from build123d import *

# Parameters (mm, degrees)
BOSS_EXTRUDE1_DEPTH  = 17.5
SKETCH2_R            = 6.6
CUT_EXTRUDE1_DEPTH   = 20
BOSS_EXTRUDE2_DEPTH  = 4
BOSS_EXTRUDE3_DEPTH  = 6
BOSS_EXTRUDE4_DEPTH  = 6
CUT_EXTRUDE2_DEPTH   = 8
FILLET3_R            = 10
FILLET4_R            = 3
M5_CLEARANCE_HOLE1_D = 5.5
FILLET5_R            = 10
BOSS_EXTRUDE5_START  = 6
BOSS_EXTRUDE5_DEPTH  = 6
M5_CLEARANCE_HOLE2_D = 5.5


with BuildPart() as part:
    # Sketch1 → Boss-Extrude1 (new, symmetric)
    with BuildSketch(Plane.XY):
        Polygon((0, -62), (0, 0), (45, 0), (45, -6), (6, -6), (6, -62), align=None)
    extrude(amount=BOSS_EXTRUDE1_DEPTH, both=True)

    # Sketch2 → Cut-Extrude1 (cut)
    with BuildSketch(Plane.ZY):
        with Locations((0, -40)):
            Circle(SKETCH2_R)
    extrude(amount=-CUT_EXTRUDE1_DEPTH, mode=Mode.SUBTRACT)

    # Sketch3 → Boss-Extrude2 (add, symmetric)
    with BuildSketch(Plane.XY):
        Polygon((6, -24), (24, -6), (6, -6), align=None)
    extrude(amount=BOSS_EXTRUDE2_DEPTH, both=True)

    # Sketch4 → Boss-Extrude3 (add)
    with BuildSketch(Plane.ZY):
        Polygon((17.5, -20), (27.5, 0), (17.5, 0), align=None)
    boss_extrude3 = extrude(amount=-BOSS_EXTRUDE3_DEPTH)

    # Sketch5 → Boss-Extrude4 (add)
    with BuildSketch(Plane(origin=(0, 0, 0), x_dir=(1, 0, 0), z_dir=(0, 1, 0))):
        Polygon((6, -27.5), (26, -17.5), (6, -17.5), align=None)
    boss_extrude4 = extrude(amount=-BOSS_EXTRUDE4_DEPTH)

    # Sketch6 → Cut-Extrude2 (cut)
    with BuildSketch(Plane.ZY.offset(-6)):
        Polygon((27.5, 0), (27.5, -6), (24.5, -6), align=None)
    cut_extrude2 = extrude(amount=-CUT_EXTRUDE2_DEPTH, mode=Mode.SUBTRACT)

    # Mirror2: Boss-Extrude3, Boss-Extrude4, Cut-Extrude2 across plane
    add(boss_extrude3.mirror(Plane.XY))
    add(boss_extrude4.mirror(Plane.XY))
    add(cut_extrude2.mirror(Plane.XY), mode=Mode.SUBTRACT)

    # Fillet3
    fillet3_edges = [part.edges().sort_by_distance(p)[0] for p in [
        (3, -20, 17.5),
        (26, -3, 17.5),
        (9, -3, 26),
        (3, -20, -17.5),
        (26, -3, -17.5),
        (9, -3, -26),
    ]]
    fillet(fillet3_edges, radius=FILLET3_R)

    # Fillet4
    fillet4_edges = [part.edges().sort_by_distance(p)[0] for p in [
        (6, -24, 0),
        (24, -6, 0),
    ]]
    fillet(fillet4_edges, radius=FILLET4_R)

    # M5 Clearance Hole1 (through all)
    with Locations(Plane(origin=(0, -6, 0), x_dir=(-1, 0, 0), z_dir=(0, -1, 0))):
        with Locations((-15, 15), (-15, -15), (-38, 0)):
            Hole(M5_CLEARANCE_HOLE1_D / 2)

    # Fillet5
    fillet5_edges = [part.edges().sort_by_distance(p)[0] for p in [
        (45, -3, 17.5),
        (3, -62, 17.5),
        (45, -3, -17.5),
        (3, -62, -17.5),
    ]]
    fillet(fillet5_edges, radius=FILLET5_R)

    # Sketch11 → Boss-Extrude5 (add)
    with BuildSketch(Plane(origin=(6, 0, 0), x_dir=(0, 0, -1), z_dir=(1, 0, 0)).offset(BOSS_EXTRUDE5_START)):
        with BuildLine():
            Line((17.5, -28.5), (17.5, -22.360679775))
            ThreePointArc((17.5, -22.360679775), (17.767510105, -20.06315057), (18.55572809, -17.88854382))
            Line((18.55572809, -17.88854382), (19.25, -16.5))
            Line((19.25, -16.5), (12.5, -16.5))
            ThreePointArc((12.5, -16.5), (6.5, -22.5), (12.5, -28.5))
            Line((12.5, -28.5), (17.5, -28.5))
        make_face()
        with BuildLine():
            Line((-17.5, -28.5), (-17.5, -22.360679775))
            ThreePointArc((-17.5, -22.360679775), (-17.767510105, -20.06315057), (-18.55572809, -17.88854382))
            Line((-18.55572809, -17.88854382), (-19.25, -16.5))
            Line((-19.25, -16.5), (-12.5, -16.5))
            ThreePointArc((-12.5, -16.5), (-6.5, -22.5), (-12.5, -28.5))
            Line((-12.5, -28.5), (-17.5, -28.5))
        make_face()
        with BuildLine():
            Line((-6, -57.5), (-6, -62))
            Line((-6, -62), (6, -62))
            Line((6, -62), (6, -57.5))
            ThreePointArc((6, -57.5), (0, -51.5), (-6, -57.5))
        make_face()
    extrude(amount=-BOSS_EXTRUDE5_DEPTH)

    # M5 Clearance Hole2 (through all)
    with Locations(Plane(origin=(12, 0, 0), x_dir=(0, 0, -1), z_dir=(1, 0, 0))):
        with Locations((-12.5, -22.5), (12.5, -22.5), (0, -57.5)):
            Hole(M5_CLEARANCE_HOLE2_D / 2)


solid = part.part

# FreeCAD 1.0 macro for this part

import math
import FreeCAD as App
import Part
import Sketcher
Q = App.Units.Quantity


def edges_at(feature, points):
    """Names of the edges that pass closest to the given points."""
    edges = feature.Shape.Edges
    near = lambda p: min(range(len(edges)), key=lambda i: edges[i].distToShape(Part.Vertex(*p))[0])
    return sorted({f"Edge{near(p) + 1}" for p in points})

doc = App.newDocument("Part")
body = doc.addObject("PartDesign::Body", "Body")

sketch1 = body.newObject("Sketcher::SketchObject", "Sketch")
sketch1.AttachmentSupport = (doc.getObject("XY_Plane"), [""])
sketch1.MapMode = "FlatFace"
sketch1.addGeometry([
    Part.LineSegment(App.Vector(0, 0, 0), App.Vector(0, -62, 0)),
    Part.LineSegment(App.Vector(0, -62, 0), App.Vector(6, -62, 0)),
    Part.LineSegment(App.Vector(6, -62, 0), App.Vector(6, -6, 0)),
    Part.LineSegment(App.Vector(6, -6, 0), App.Vector(45, -6, 0)),
    Part.LineSegment(App.Vector(45, -6, 0), App.Vector(45, 0, 0)),
    Part.LineSegment(App.Vector(45, 0, 0), App.Vector(0, 0, 0)),
], False)
sketch1.addConstraint([
    Sketcher.Constraint("Coincident", 0, 2, 1, 1),
    Sketcher.Constraint("Coincident", 1, 2, 2, 1),
    Sketcher.Constraint("Coincident", 2, 2, 3, 1),
    Sketcher.Constraint("Coincident", 3, 2, 4, 1),
    Sketcher.Constraint("Coincident", 4, 2, 5, 1),
    Sketcher.Constraint("Coincident", 5, 2, 0, 1),
    Sketcher.Constraint("Vertical", 0),
    Sketcher.Constraint("Horizontal", 1),
    Sketcher.Constraint("Vertical", 2),
    Sketcher.Constraint("Horizontal", 3),
    Sketcher.Constraint("Vertical", 4),
    Sketcher.Constraint("Horizontal", 5),
    Sketcher.Constraint("Coincident", 5, 2, -1, 1),
    Sketcher.Constraint("Equal", 1, 4),
    Sketcher.Constraint("DistanceX", 1, 1, 1, 2, Q("6 mm")),
    Sketcher.Constraint("DistanceX", 3, 1, 3, 2, Q("39 mm")),
    Sketcher.Constraint("DistanceY", 0, 2, 0, 1, Q("62 mm")),
])
pad1 = body.newObject("PartDesign::Pad", "Pad")
pad1.Profile = sketch1
pad1.Length = 35
pad1.Midplane = True

sketch2 = body.newObject("Sketcher::SketchObject", "Sketch001")
sketch2.AttachmentSupport = (doc.getObject("YZ_Plane"), [""])
sketch2.MapMode = "FlatFace"
sketch2.addGeometry(Part.Circle(App.Vector(-40, 0, 0), App.Vector(0, 0, 1), 7), False)
sketch2.addConstraint([
    Sketcher.Constraint("PointOnObject", 0, 3, -1),
    Sketcher.Constraint("Diameter", 0, Q("13.2 mm")),
    Sketcher.Constraint("DistanceX", 0, 3, -1, 1, Q("40 mm")),
])
pocket1 = body.newObject("PartDesign::Pocket", "Pocket")
pocket1.Profile = sketch2
pocket1.Length = 20
pocket1.Reversed = True

sketch3 = body.newObject("Sketcher::SketchObject", "Sketch002")
sketch3.AttachmentSupport = (doc.getObject("XY_Plane"), [""])
sketch3.MapMode = "FlatFace"
sketch3.addGeometry([
    Part.LineSegment(App.Vector(6, -24, 0), App.Vector(24, -6, 0)),
    Part.LineSegment(App.Vector(24, -6, 0), App.Vector(6, -6, 0)),
    Part.LineSegment(App.Vector(6, -6, 0), App.Vector(6, -24, 0)),
], False)
sketch3.addConstraint([
    Sketcher.Constraint("Coincident", 0, 2, 1, 1),
    Sketcher.Constraint("Coincident", 1, 2, 2, 1),
    Sketcher.Constraint("Coincident", 2, 2, 0, 1),
    Sketcher.Constraint("Horizontal", 1),
    Sketcher.Constraint("Vertical", 2),
    Sketcher.Constraint("Equal", 1, 2),
    Sketcher.Constraint("DistanceX", 1, 2, 1, 1, Q("18 mm")),
    Sketcher.Constraint("DistanceX", -1, 1, 0, 2, Q("24 mm")),
    Sketcher.Constraint("DistanceY", 0, 2, -1, 1, Q("6 mm")),
])
pad2 = body.newObject("PartDesign::Pad", "Pad001")
pad2.Profile = sketch3
pad2.Length = 8
pad2.Midplane = True

sketch4 = body.newObject("Sketcher::SketchObject", "Sketch003")
sketch4.AttachmentSupport = (doc.getObject("YZ_Plane"), [""])
sketch4.MapMode = "FlatFace"
sketch4.addGeometry([
    Part.LineSegment(App.Vector(-20, 18, 0), App.Vector(0, 28, 0)),
    Part.LineSegment(App.Vector(0, 28, 0), App.Vector(0, 18, 0)),
    Part.LineSegment(App.Vector(0, 18, 0), App.Vector(-20, 18, 0)),
], False)
sketch4.addConstraint([
    Sketcher.Constraint("Coincident", 0, 2, 1, 1),
    Sketcher.Constraint("Coincident", 1, 2, 2, 1),
    Sketcher.Constraint("Coincident", 2, 2, 0, 1),
    Sketcher.Constraint("Vertical", 1),
    Sketcher.Constraint("Horizontal", 2),
    Sketcher.Constraint("PointOnObject", 0, 2, -2),
    Sketcher.Constraint("DistanceX", 2, 2, 2, 1, Q("20 mm")),
    Sketcher.Constraint("DistanceY", 1, 2, 1, 1, Q("10 mm")),
    Sketcher.Constraint("DistanceY", -1, 1, 0, 2, Q("27.5 mm")),
])
pad3 = body.newObject("PartDesign::Pad", "Pad002")
pad3.Profile = sketch4
pad3.Length = 6

sketch5 = body.newObject("Sketcher::SketchObject", "Sketch004")
sketch5.AttachmentSupport = (doc.getObject("XZ_Plane"), [""])
sketch5.MapMode = "FlatFace"
sketch5.addGeometry([
    Part.LineSegment(App.Vector(6, 28, 0), App.Vector(26, 18, 0)),
    Part.LineSegment(App.Vector(26, 18, 0), App.Vector(6, 18, 0)),
    Part.LineSegment(App.Vector(6, 18, 0), App.Vector(6, 28, 0)),
], False)
sketch5.addConstraint([
    Sketcher.Constraint("Coincident", 0, 2, 1, 1),
    Sketcher.Constraint("Coincident", 1, 2, 2, 1),
    Sketcher.Constraint("Coincident", 2, 2, 0, 1),
    Sketcher.Constraint("Horizontal", 1),
    Sketcher.Constraint("Vertical", 2),
    Sketcher.Constraint("DistanceX", 1, 2, 1, 1, Q("20 mm")),
    Sketcher.Constraint("DistanceY", 2, 1, 2, 2, Q("10 mm")),
    Sketcher.Constraint("DistanceX", -1, 1, 0, 2, Q("26 mm")),
    Sketcher.Constraint("DistanceY", -1, 1, 0, 2, Q("17.5 mm")),
])
pad4 = body.newObject("PartDesign::Pad", "Pad003")
pad4.Profile = sketch5
pad4.Length = 6

sketch6 = body.newObject("Sketcher::SketchObject", "Sketch005")
sketch6.AttachmentSupport = (doc.getObject("YZ_Plane"), [""])
sketch6.MapMode = "FlatFace"
sketch6.AttachmentOffset = App.Placement(App.Vector(0, 0, 6), App.Rotation())
sketch6.addGeometry([
    Part.LineSegment(App.Vector(-6, 27.5, 0), App.Vector(0, 27.5, 0)),
    Part.LineSegment(App.Vector(0, 27.5, 0), App.Vector(-6, 24.5, 0)),
    Part.LineSegment(App.Vector(-6, 24.5, 0), App.Vector(-6, 27.5, 0)),
], False)
sketch6.addConstraint([
    Sketcher.Constraint("Coincident", 0, 2, 1, 1),
    Sketcher.Constraint("Coincident", 1, 2, 2, 1),
    Sketcher.Constraint("Coincident", 2, 2, 0, 1),
    Sketcher.Constraint("Horizontal", 0),
    Sketcher.Constraint("Vertical", 2),
    Sketcher.Constraint("PointOnObject", 0, 2, -2),
    Sketcher.Constraint("DistanceX", 0, 1, 0, 2, Q("6 mm")),
    Sketcher.Constraint("DistanceY", 2, 1, 2, 2, Q("3 mm")),
    Sketcher.Constraint("DistanceY", -1, 1, 0, 2, Q("27.5 mm")),
])
pocket2 = body.newObject("PartDesign::Pocket", "Pocket001")
pocket2.Profile = sketch6
pocket2.Length = 8
pocket2.Reversed = True
doc.recompute()

mirrored = body.newObject("PartDesign::Mirrored", "Mirrored")
mirrored.Originals = [pad3, pad4, pocket2]
mirrored.MirrorPlane = (doc.getObject("XY_Plane"), [""])
body.Tip = mirrored
doc.recompute()

fillet = body.newObject("PartDesign::Fillet", "Fillet")
fillet.Base = (mirrored, edges_at(mirrored, [
    (3, -20, 17.5),
    (26, -3, 17.5),
    (9, -3, 26),
    (3, -20, -17.5),
    (26, -3, -17.5),
    (9, -3, -26),
]))
fillet.Radius = 10
doc.recompute()

fillet2 = body.newObject("PartDesign::Fillet", "Fillet001")
fillet2.Base = (fillet, edges_at(fillet, [(6, -24, 0), (24, -6, 0)]))
fillet2.Radius = 3

sketch7 = body.newObject("Sketcher::SketchObject", "Sketch006")
sketch7.AttachmentSupport = (doc.getObject("XZ_Plane"), [""])
sketch7.MapMode = "FlatFace"
sketch7.AttachmentOffset = App.Placement(App.Vector(0, 0, 6), App.Rotation())
sketch7.addGeometry([
    Part.Circle(App.Vector(15, -15, 0), App.Vector(0, 0, 1), 2.8),
    Part.Circle(App.Vector(15, 15, 0), App.Vector(0, 0, 1), 2.8),
    Part.Circle(App.Vector(38, 0, 0), App.Vector(0, 0, 1), 2.8),
], False)
sketch7.addConstraint([
    Sketcher.Constraint("Equal", 0, 1),
    Sketcher.Constraint("Equal", 1, 2),
    Sketcher.Constraint("Symmetric", 0, 3, 1, 3, -1),
    Sketcher.Constraint("PointOnObject", 2, 3, -1),
    Sketcher.Constraint("Diameter", 0, Q("5.5 mm")),
    Sketcher.Constraint("DistanceX", -1, 1, 0, 3, Q("15 mm")),
    Sketcher.Constraint("DistanceY", 0, 3, -1, 1, Q("15 mm")),
    Sketcher.Constraint("DistanceX", -1, 1, 2, 3, Q("38 mm")),
])
doc.recompute()
hole = body.newObject("PartDesign::Hole", "Hole")
hole.Profile = sketch7
hole.ThreadType = "None"
hole.Diameter = 5.5
hole.DepthType = "ThroughAll"
doc.recompute()

fillet3 = body.newObject("PartDesign::Fillet", "Fillet002")
fillet3.Base = (hole, edges_at(hole, [
    (45, -3, 17.5),
    (3, -62, 17.5),
    (45, -3, -17.5),
    (3, -62, -17.5),
]))
fillet3.Radius = 10

sketch8 = body.newObject("Sketcher::SketchObject", "Sketch007")
sketch8.AttachmentSupport = (doc.getObject("YZ_Plane"), [""])
sketch8.MapMode = "FlatFace"
sketch8.AttachmentOffset = App.Placement(App.Vector(0, 0, 12), App.Rotation())
sketch8.addGeometry([
    Part.LineSegment(App.Vector(-28.5, -17.5, 0), App.Vector(-22.4, -17.5, 0)),
    Part.ArcOfCircle(Part.Circle(App.Vector(-22.4, -27.5, 0), App.Vector(0, 0, 1), 10), math.radians(63), math.radians(90)),
    Part.LineSegment(App.Vector(-17.9, -18.6, 0), App.Vector(-16.5, -19.2, 0)),
    Part.LineSegment(App.Vector(-16.5, -19.2, 0), App.Vector(-16.5, -12.5, 0)),
    Part.ArcOfCircle(Part.Circle(App.Vector(-22.5, -12.5, 0), App.Vector(0, 0, 1), 6), math.radians(0), math.radians(180)),
    Part.LineSegment(App.Vector(-28.5, -12.5, 0), App.Vector(-28.5, -17.5, 0)),
    Part.LineSegment(App.Vector(-22.4, 17.5, 0), App.Vector(-28.5, 17.5, 0)),
    Part.LineSegment(App.Vector(-28.5, 17.5, 0), App.Vector(-28.5, 12.5, 0)),
    Part.ArcOfCircle(Part.Circle(App.Vector(-22.5, 12.5, 0), App.Vector(0, 0, 1), 6), math.radians(180), math.radians(360)),
    Part.LineSegment(App.Vector(-16.5, 12.5, 0), App.Vector(-16.5, 19.2, 0)),
    Part.LineSegment(App.Vector(-16.5, 19.2, 0), App.Vector(-17.9, 18.6, 0)),
    Part.ArcOfCircle(Part.Circle(App.Vector(-22.4, 27.5, 0), App.Vector(0, 0, 1), 10), math.radians(-90), math.radians(-63)),
    Part.LineSegment(App.Vector(-57.5, 6, 0), App.Vector(-62, 6, 0)),
    Part.LineSegment(App.Vector(-62, 6, 0), App.Vector(-62, -6, 0)),
    Part.LineSegment(App.Vector(-62, -6, 0), App.Vector(-57.5, -6, 0)),
    Part.ArcOfCircle(Part.Circle(App.Vector(-57.5, 0, 0), App.Vector(0, 0, 1), 6), math.radians(-90), math.radians(90)),
], False)
sketch8.addConstraint([
    Sketcher.Constraint("Tangent", 0, 2, 1, 2),
    Sketcher.Constraint("Tangent", 1, 1, 2, 1),
    Sketcher.Constraint("Coincident", 2, 2, 3, 1),
    Sketcher.Constraint("Tangent", 3, 2, 4, 1),
    Sketcher.Constraint("Tangent", 4, 2, 5, 1),
    Sketcher.Constraint("Coincident", 5, 2, 0, 1),
    Sketcher.Constraint("Coincident", 6, 2, 7, 1),
    Sketcher.Constraint("Tangent", 7, 2, 8, 1),
    Sketcher.Constraint("Tangent", 8, 2, 9, 1),
    Sketcher.Constraint("Coincident", 9, 2, 10, 1),
    Sketcher.Constraint("Tangent", 10, 2, 11, 2),
    Sketcher.Constraint("Tangent", 11, 1, 6, 1),
    Sketcher.Constraint("Coincident", 12, 2, 13, 1),
    Sketcher.Constraint("Coincident", 13, 2, 14, 1),
    Sketcher.Constraint("Tangent", 14, 2, 15, 1),
    Sketcher.Constraint("Tangent", 15, 2, 12, 1),
    Sketcher.Constraint("Horizontal", 0),
    Sketcher.Constraint("Vertical", 3),
    Sketcher.Constraint("Vertical", 5),
    Sketcher.Constraint("Horizontal", 6),
    Sketcher.Constraint("Vertical", 7),
    Sketcher.Constraint("Vertical", 9),
    Sketcher.Constraint("Horizontal", 12),
    Sketcher.Constraint("Vertical", 13),
    Sketcher.Constraint("Horizontal", 14),
    Sketcher.Constraint("Equal", 4, 8),
    Sketcher.Constraint("Equal", 1, 11),
    Sketcher.Constraint("Equal", 8, 15),
    Sketcher.Constraint("Symmetric", 4, 3, 8, 3, -1),
    Sketcher.Constraint("Symmetric", 1, 3, 11, 3, -1),
    Sketcher.Constraint("PointOnObject", 15, 3, -1),
    Sketcher.Constraint("Vertical", 1, 1, 10, 2),
    Sketcher.Constraint("Radius", 1, Q("10 mm")),
    Sketcher.Constraint("Radius", 4, Q("6 mm")),
    Sketcher.Constraint("DistanceY", 5, 2, 5, 1, Q("5 mm")),
    Sketcher.Constraint("DistanceX", 12, 2, 12, 1, Q("4.5 mm")),
    Sketcher.Constraint("DistanceX", 12, 2, -1, 1, Q("62 mm")),
    Sketcher.Constraint("DistanceY", 4, 3, 8, 3, Q("25 mm")),
    Sketcher.Constraint("DistanceX", 15, 3, 4, 3, Q("35 mm")),
    Sketcher.Constraint("DistanceY", 3, 1, 3, 2, Q("6.75 mm")),
    Sketcher.Constraint("DistanceX", 0, 1, 0, 2, Q("6.13932 mm")),
])
pad5 = body.newObject("PartDesign::Pad", "Pad004")
pad5.Profile = sketch8
pad5.Length = 6
pad5.Reversed = True

sketch9 = body.newObject("Sketcher::SketchObject", "Sketch008")
sketch9.AttachmentSupport = (doc.getObject("YZ_Plane"), [""])
sketch9.MapMode = "FlatFace"
sketch9.AttachmentOffset = App.Placement(App.Vector(0, 0, 12), App.Rotation())
sketch9.addGeometry([
    Part.Circle(App.Vector(-22.5, 12.5, 0), App.Vector(0, 0, 1), 2.8),
    Part.Circle(App.Vector(-22.5, -12.5, 0), App.Vector(0, 0, 1), 2.8),
    Part.Circle(App.Vector(-57.5, 0, 0), App.Vector(0, 0, 1), 2.8),
], False)
sketch9.addConstraint([
    Sketcher.Constraint("Equal", 0, 1),
    Sketcher.Constraint("Equal", 1, 2),
    Sketcher.Constraint("Symmetric", 0, 3, 1, 3, -1),
    Sketcher.Constraint("PointOnObject", 2, 3, -1),
    Sketcher.Constraint("Diameter", 0, Q("5.5 mm")),
    Sketcher.Constraint("DistanceY", 1, 3, 0, 3, Q("25 mm")),
    Sketcher.Constraint("DistanceX", 2, 3, 0, 3, Q("35 mm")),
    Sketcher.Constraint("DistanceX", 0, 3, -1, 1, Q("22.5 mm")),
])
doc.recompute()
hole2 = body.newObject("PartDesign::Hole", "Hole001")
hole2.Profile = sketch9
hole2.ThreadType = "None"
hole2.Diameter = 5.5
hole2.DepthType = "ThroughAll"

doc.recompute()
